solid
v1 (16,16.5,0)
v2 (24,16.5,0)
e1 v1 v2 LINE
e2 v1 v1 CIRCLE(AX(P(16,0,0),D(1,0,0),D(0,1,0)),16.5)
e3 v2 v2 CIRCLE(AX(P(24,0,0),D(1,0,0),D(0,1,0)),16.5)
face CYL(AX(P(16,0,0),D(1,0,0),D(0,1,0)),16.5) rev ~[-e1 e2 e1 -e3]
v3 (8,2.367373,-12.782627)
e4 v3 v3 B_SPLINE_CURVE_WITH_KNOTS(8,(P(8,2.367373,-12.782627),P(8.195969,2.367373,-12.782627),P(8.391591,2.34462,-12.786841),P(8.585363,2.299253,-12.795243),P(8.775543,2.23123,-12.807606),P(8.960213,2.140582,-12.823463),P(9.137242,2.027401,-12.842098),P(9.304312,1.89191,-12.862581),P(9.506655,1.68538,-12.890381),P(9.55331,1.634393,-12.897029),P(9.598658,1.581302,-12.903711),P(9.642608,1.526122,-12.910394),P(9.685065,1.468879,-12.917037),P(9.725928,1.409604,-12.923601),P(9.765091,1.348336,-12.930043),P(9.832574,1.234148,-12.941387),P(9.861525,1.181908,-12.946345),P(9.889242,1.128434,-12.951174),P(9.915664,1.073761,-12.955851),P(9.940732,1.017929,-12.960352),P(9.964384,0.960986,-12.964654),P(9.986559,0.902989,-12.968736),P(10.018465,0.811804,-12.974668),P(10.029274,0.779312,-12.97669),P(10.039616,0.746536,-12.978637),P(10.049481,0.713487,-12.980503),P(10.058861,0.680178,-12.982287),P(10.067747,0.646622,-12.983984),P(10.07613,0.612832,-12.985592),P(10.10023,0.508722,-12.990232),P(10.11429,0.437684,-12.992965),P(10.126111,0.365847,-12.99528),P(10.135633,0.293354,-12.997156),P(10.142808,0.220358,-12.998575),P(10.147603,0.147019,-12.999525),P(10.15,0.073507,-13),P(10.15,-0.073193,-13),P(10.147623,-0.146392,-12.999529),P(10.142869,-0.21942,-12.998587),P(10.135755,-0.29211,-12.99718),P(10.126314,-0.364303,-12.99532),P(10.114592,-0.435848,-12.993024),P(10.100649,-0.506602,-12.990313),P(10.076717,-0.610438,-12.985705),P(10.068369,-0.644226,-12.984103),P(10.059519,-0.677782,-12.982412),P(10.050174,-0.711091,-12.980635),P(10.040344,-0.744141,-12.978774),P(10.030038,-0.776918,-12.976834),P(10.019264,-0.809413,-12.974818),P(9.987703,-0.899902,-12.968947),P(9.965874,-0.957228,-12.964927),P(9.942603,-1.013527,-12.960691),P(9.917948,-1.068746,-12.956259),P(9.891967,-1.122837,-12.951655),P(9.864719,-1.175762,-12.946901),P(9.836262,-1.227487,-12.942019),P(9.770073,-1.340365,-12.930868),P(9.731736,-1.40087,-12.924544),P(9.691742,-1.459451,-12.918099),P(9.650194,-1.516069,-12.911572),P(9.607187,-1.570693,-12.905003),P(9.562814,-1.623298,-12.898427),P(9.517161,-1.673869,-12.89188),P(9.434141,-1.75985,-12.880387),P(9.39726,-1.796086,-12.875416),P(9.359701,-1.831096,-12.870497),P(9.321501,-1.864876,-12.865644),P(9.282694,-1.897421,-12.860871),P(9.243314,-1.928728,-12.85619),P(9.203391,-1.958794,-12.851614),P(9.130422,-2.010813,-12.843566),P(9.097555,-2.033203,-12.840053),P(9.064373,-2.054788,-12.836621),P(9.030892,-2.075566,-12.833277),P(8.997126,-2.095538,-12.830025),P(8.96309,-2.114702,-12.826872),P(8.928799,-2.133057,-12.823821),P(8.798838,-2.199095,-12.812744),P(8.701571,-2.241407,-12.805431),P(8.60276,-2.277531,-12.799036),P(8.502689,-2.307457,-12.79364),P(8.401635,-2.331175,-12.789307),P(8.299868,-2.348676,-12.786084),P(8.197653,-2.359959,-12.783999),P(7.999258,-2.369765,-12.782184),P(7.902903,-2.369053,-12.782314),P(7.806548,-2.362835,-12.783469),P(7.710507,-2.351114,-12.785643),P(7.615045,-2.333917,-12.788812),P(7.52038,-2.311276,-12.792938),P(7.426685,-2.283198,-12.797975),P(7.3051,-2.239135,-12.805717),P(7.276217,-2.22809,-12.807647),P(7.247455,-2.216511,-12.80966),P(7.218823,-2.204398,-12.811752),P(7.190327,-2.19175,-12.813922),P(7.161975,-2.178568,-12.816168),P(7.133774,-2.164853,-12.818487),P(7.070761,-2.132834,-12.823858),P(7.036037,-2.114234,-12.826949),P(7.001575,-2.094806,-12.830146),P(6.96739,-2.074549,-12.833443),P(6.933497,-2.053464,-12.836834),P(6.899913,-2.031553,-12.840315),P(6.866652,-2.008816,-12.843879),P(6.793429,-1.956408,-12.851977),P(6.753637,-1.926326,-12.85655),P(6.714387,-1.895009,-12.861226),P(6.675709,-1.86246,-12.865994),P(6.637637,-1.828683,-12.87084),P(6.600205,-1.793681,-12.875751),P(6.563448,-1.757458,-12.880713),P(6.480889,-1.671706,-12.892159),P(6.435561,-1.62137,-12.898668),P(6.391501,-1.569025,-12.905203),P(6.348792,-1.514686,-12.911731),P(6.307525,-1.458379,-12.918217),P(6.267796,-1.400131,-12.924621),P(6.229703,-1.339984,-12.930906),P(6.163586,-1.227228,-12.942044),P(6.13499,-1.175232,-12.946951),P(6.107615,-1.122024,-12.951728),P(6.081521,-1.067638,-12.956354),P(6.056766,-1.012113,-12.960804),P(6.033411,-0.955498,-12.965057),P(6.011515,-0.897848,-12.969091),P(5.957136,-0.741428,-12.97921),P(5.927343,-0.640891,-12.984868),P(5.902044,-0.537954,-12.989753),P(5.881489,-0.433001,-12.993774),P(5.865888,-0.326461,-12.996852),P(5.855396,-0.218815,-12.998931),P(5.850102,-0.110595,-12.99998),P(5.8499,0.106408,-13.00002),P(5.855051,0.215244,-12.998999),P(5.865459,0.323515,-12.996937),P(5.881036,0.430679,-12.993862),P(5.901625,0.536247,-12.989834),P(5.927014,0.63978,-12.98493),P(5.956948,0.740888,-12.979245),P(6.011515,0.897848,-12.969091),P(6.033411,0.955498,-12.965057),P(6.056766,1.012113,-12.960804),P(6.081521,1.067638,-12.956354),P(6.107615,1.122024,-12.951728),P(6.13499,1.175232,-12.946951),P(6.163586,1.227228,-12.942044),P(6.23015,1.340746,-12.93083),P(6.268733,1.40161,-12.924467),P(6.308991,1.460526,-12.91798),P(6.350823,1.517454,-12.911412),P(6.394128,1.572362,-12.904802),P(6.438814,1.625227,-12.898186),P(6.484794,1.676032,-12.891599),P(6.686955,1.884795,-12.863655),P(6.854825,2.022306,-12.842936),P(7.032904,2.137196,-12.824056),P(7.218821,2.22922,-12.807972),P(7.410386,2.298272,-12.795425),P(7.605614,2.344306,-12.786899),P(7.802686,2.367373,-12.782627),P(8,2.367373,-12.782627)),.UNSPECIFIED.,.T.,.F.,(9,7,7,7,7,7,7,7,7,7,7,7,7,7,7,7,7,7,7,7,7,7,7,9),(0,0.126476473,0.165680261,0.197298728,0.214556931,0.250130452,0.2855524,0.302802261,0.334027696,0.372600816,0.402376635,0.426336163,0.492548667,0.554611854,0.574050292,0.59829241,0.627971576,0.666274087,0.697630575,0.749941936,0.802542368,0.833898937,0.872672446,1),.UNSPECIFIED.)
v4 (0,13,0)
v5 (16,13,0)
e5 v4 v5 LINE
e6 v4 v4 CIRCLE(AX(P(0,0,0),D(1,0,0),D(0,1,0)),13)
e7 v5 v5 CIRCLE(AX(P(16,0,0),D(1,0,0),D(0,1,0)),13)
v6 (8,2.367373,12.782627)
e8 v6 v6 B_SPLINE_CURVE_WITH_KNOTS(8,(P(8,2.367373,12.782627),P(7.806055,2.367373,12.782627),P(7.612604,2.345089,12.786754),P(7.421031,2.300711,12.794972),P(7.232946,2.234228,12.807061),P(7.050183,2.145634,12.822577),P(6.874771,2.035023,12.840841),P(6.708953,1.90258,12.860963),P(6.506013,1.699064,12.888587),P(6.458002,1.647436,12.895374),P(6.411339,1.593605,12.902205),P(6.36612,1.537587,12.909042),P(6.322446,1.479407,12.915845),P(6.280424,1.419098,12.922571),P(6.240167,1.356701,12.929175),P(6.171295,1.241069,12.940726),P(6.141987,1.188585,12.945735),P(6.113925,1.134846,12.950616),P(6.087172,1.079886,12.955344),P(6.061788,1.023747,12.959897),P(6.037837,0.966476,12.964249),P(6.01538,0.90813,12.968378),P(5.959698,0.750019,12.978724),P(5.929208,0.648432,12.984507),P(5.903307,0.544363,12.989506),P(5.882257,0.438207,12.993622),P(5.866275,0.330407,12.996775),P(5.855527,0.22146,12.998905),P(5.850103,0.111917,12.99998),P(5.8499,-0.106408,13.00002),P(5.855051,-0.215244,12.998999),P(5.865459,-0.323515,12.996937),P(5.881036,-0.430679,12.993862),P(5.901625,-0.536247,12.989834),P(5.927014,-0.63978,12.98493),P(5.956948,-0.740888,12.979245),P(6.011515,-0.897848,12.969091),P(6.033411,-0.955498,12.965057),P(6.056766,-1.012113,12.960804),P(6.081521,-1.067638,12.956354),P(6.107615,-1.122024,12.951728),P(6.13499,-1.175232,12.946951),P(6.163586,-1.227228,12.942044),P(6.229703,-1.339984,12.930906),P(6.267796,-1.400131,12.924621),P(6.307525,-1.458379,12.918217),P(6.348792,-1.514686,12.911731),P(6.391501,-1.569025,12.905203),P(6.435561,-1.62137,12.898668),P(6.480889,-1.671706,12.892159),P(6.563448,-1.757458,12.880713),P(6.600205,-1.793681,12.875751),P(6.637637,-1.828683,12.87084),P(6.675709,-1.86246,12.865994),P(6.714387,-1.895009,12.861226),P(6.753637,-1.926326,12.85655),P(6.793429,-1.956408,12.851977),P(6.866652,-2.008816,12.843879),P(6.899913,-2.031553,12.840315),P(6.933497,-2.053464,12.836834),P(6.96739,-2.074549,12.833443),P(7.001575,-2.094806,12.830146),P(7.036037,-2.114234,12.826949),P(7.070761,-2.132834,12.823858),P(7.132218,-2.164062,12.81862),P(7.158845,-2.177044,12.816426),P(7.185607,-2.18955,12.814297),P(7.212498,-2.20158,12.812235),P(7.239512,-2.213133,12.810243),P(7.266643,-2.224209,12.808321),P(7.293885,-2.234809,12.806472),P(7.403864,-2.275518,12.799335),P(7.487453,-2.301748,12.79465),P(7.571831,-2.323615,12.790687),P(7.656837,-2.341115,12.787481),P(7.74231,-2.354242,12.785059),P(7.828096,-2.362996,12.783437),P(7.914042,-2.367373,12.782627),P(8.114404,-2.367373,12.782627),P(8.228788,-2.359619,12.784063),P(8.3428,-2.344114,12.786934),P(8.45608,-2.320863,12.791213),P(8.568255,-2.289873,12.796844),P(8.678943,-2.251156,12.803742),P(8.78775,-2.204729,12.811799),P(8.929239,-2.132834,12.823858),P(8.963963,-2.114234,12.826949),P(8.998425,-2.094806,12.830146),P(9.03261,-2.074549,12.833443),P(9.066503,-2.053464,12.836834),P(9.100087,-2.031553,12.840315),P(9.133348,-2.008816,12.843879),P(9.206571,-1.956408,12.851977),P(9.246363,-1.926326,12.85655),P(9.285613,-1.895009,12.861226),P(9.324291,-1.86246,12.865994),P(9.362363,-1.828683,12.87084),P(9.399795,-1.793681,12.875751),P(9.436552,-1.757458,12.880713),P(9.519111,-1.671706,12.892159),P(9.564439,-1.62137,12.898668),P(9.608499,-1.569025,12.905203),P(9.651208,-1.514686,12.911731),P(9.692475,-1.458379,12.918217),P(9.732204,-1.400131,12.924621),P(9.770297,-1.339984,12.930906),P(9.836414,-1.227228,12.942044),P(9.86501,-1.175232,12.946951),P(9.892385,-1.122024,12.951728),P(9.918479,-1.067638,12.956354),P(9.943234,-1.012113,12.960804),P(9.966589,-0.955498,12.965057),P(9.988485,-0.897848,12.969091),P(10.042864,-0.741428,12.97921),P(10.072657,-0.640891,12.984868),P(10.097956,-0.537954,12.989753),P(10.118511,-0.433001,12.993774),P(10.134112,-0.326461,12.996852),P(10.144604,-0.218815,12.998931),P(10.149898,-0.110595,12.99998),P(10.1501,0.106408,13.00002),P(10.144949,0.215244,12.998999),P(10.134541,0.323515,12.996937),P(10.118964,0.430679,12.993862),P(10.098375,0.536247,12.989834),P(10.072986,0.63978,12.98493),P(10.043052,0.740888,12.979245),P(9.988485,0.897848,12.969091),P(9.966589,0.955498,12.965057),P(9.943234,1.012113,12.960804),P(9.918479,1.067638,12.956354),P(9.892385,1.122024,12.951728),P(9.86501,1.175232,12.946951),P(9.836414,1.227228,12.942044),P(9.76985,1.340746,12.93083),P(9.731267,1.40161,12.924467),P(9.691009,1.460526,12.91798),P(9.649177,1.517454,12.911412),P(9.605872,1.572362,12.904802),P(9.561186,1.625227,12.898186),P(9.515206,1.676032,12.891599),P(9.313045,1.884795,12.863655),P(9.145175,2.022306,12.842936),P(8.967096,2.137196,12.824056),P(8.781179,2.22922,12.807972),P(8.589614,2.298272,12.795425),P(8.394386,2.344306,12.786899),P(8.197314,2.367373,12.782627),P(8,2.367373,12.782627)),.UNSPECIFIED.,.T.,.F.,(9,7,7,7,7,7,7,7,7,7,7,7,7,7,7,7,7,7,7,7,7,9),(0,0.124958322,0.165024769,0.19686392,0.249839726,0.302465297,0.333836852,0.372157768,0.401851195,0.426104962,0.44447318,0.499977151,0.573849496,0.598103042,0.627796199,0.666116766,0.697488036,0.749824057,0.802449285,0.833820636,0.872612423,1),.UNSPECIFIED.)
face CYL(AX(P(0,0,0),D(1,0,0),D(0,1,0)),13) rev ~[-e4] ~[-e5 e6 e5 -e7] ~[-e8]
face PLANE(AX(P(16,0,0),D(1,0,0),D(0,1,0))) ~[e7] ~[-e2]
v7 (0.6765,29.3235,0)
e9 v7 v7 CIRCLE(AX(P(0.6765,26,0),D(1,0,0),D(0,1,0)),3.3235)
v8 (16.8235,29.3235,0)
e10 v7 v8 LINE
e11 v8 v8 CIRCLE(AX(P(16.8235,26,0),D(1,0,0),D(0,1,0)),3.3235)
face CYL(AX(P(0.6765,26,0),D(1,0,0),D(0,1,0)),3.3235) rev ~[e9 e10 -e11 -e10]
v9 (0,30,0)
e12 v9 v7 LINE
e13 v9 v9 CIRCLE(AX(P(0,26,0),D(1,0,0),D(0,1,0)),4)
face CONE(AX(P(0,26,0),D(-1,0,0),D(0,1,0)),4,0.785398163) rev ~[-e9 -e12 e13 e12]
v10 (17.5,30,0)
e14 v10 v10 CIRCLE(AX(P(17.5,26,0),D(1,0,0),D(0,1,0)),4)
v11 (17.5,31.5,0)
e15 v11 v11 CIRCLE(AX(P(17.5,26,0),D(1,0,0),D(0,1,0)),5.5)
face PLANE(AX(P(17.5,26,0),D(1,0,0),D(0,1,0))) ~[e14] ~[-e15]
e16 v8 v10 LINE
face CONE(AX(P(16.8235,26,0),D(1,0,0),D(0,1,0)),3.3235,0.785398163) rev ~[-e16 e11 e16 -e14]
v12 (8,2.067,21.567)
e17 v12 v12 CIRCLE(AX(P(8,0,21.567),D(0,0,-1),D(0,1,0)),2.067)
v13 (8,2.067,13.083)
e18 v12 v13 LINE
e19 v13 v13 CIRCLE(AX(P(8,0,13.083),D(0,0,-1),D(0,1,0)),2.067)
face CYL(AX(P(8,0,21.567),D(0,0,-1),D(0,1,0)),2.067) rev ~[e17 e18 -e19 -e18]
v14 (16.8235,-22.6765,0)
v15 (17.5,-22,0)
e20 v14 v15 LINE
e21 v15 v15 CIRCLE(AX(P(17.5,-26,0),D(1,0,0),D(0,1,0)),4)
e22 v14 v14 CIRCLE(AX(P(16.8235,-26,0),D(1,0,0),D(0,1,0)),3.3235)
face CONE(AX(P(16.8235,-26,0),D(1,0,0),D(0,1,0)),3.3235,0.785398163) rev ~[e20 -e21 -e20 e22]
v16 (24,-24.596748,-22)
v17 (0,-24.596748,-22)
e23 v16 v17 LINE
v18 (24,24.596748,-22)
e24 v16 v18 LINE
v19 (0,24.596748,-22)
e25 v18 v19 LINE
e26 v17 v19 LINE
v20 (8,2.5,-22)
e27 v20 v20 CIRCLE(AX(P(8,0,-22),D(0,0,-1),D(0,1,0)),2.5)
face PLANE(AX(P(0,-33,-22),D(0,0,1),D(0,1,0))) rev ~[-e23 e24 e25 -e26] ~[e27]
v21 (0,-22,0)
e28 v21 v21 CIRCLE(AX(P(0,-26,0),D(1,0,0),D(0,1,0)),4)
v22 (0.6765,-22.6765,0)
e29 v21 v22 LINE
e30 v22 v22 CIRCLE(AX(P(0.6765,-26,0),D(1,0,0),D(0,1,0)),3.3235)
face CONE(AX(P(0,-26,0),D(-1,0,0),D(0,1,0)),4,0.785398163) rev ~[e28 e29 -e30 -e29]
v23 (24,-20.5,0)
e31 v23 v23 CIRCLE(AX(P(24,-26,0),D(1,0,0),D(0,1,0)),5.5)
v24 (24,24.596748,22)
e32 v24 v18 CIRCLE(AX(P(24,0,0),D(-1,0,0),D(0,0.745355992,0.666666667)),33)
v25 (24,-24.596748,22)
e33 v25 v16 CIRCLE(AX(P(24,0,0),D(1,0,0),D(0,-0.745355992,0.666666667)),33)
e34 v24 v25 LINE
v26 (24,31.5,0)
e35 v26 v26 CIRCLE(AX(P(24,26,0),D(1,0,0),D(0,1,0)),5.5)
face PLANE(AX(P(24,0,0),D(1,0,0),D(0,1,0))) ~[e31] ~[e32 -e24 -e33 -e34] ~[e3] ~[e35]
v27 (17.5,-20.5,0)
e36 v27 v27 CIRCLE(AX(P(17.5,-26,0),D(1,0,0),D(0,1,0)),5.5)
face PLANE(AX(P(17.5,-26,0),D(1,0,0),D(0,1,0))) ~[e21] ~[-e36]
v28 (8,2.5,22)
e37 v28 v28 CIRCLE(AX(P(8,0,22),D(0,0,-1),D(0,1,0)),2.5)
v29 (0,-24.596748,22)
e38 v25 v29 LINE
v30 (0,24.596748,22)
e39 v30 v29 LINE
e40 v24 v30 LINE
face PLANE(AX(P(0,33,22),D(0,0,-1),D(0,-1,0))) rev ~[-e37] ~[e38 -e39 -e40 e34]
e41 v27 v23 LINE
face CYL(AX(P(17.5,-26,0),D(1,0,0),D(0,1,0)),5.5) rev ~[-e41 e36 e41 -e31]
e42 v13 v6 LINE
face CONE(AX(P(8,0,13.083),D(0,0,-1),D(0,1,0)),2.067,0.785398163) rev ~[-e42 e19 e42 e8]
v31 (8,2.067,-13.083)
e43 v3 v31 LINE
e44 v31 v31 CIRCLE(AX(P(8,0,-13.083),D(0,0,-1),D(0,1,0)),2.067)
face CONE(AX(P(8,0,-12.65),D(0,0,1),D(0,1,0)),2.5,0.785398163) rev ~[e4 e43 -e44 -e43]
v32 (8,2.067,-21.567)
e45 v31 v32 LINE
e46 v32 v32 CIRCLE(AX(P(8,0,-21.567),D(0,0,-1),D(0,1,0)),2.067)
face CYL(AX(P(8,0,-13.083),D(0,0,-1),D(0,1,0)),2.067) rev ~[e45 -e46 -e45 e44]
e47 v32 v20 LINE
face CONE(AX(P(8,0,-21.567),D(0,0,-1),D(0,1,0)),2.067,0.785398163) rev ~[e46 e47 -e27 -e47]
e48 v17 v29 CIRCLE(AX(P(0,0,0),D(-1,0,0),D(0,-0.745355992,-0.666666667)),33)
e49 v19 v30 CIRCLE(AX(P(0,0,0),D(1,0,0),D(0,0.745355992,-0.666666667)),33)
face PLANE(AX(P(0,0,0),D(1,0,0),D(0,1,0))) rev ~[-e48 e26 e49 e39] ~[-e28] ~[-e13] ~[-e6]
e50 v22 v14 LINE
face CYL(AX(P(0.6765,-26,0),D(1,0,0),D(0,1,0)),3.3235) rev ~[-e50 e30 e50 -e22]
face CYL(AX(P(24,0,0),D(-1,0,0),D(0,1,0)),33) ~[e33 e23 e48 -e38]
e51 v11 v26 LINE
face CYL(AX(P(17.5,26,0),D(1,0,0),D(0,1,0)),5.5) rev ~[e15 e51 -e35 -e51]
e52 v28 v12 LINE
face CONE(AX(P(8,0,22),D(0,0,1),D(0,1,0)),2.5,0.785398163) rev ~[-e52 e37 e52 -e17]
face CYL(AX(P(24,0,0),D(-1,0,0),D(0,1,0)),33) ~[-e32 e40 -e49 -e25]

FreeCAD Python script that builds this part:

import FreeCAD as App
import Part
import Sketcher
from FreeCAD import Vector
Q = App.Units.Quantity


def add_polygon(sketch, points):
    """Adds a closed chain of lines whose ends are joined by coincident constraints."""
    first, n = sketch.GeometryCount, len(points)
    for a, b in zip(points, points[1:] + points[:1]):
        sketch.addGeometry(Part.LineSegment(App.Vector(*a, 0), App.Vector(*b, 0)), False)
    for i in range(n):
        sketch.addConstraint(Sketcher.Constraint("Coincident", first + i, 2, first + (i + 1) % n, 1))

doc = App.newDocument("Part")
params = doc.addObject("Spreadsheet::Sheet", "Params")
for row, (alias, value) in enumerate([
    ("sketch1_width", "24 mm"),
    ("sketch1_width2", "16 mm"),
    ("sketch1_height", "20 mm"),
    ("sketch1_height2", "3.5 mm"),
    ("revolution_angle", "360 deg"),
    ("sketch2_width", "264 mm"),
    ("sketch2_width2", "66 mm"),
    ("sketch2_height", "176 mm"),
    ("sketch2_height2", "44 mm"),
    ("pocket1_length", "26 mm"),
    ("sketch3_width", "24 mm"),
    ("sketch3_height", "4 mm"),
    ("sketch3_width2", "6.5 mm"),
    ("sketch3_height2", "5.5 mm"),
    ("groove_angle", "360 deg"),
    ("linearpattern_pitch", "52 mm"),
    ("sketch4_width", "2.5 mm"),
    ("sketch4_height", "9.35 mm"),
    ("groove2_angle", "360 deg"),
    ("sketch5_width", "2.5 mm"),
    ("sketch5_height", "9.35 mm"),
    ("groove3_angle", "360 deg"),
], start=1):
    params.set(f"A{row}", alias)
    params.set(f"B{row}", "=" + value)
    params.setAlias(f"B{row}", alias)

body = doc.addObject("PartDesign::Body", "Body")

# Sketch on XY plane
sketch1 = body.newObject("Sketcher::SketchObject", "Sketch")
sketch1.AttachmentSupport = (doc.getObject("XY_Plane"), [""])
sketch1.MapMode = "FlatFace"
add_polygon(sketch1, [(24, 33), (0, 33), (0, 13), (16, 13), (16, 16.5), (24, 16.5)])  # lines 0-5
sketch1.addConstraint([
    Sketcher.Constraint("Horizontal", 0),
    Sketcher.Constraint("Vertical", 1),
    Sketcher.Constraint("Horizontal", 2),
    Sketcher.Constraint("Vertical", 3),
    Sketcher.Constraint("Horizontal", 4),
    Sketcher.Constraint("Vertical", 5),
    Sketcher.Constraint("PointOnObject", 0, 2, -2),
    Sketcher.Constraint("DistanceX", 0, 2, 0, 1, Q("24 mm")),
    Sketcher.Constraint("DistanceX", 2, 1, 2, 2, Q("16 mm")),
    Sketcher.Constraint("DistanceY", 1, 2, 1, 1, Q("20 mm")),
    Sketcher.Constraint("DistanceY", 3, 1, 3, 2, Q("3.5 mm")),
    Sketcher.Constraint("DistanceY", -1, 1, 0, 2, Q("33 mm")),
])
sketch1.setExpression("Constraints[13]", "Params.sketch1_width")
sketch1.setExpression("Constraints[14]", "Params.sketch1_width2")
sketch1.setExpression("Constraints[15]", "Params.sketch1_height")
sketch1.setExpression("Constraints[16]", "Params.sketch1_height2")
revolution = body.newObject("PartDesign::Revolution", "Revolution")
revolution.Profile = sketch1
revolution.ReferenceAxis = (sketch1, ["H_Axis"])
revolution.setExpression("Angle", "Params.revolution_angle")

# Sketch on YZ plane
sketch2 = body.newObject("Sketcher::SketchObject", "Sketch001")
sketch2.AttachmentSupport = (doc.getObject("YZ_Plane"), [""])
sketch2.MapMode = "FlatFace"
add_polygon(sketch2, [(132, 88), (-132, 88), (-132, -88), (132, -88)])  # lines 0-3
add_polygon(sketch2, [(-33, -22), (-33, 22), (33, 22), (33, -22)])  # lines 4-7
sketch2.addConstraint([
    Sketcher.Constraint("Horizontal", 0),
    Sketcher.Constraint("Vertical", 1),
    Sketcher.Constraint("Horizontal", 2),
    Sketcher.Constraint("Vertical", 3),
    Sketcher.Constraint("Vertical", 4),
    Sketcher.Constraint("Horizontal", 5),
    Sketcher.Constraint("Vertical", 6),
    Sketcher.Constraint("Horizontal", 7),
    Sketcher.Constraint("Symmetric", 0, 2, 2, 2, -1, 1),
    Sketcher.Constraint("Symmetric", 4, 2, 6, 2, -1, 1),
    Sketcher.Constraint("DistanceX", 0, 2, 0, 1, Q("264 mm")),
    Sketcher.Constraint("DistanceX", 5, 1, 5, 2, Q("66 mm")),
    Sketcher.Constraint("DistanceY", 1, 2, 1, 1, Q("176 mm")),
    Sketcher.Constraint("DistanceY", 4, 1, 4, 2, Q("44 mm")),
])
sketch2.setExpression("Constraints[18]", "Params.sketch2_width")
sketch2.setExpression("Constraints[19]", "Params.sketch2_width2")
sketch2.setExpression("Constraints[20]", "Params.sketch2_height")
sketch2.setExpression("Constraints[21]", "Params.sketch2_height2")
pocket1 = body.newObject("PartDesign::Pocket", "Pocket")
pocket1.Profile = sketch2
pocket1.setExpression("Length", "Params.pocket1_length")
pocket1.Reversed = True

# Sketch on XY plane
sketch3 = body.newObject("Sketcher::SketchObject", "Sketch002")
sketch3.AttachmentSupport = (doc.getObject("XY_Plane"), [""])
sketch3.MapMode = "FlatFace"
add_polygon(sketch3, [(0, 26), (24, 26), (24, 31.5), (17.5, 31.5), (17.5, 30), (16.8, 29.3), (0.7, 29.3), (0, 30)])  # lines 0-7
sketch3.addGeometry(Part.LineSegment(Vector(0, 26, 0), Vector(24, 26, 0)), True)  # axis
sketch3.addConstraint([
    Sketcher.Constraint("Horizontal", 0),
    Sketcher.Constraint("Vertical", 1),
    Sketcher.Constraint("Horizontal", 2),
    Sketcher.Constraint("Vertical", 3),
    Sketcher.Constraint("Horizontal", 5),
    Sketcher.Constraint("Vertical", 7),
    Sketcher.Constraint("Horizontal", 8),
    Sketcher.Constraint("Coincident", 8, 1, 7, 2),
    Sketcher.Constraint("PointOnObject", 6, 2, -2),
    Sketcher.Constraint("Perpendicular", 4, 6),
    Sketcher.Constraint("Horizontal", 3, 2, 6, 2),
    Sketcher.Constraint("Vertical", 1, 2, 8, 2),
    Sketcher.Constraint("Equal", 4, 6),
    Sketcher.Constraint("DistanceX", 0, 1, 0, 2, Q("24 mm")),
    Sketcher.Constraint("DistanceY", 7, 2, 7, 1, Q("4 mm")),
    Sketcher.Constraint("DistanceX", 2, 2, 2, 1, Q("6.5 mm")),
    Sketcher.Constraint("DistanceY", 1, 1, 1, 2, Q("5.5 mm")),
    Sketcher.Constraint("DistanceY", -1, 1, 0, 2, Q("26 mm")),
    Sketcher.Constraint("DistanceX", 5, 2, 5, 1, Q("16.147 mm")),
])
sketch3.setExpression("Constraints[21]", "Params.sketch3_width")
sketch3.setExpression("Constraints[22]", "Params.sketch3_height")
sketch3.setExpression("Constraints[23]", "Params.sketch3_width2")
sketch3.setExpression("Constraints[24]", "Params.sketch3_height2")
groove = body.newObject("PartDesign::Groove", "Groove")
groove.Profile = sketch3
groove.ReferenceAxis = (sketch3, ["Axis0"])
groove.setExpression("Angle", "Params.groove_angle")
doc.recompute()

linearpattern = body.newObject("PartDesign::LinearPattern", "LinearPattern")
linearpattern.Originals = [groove]
linearpattern.Direction = (doc.getObject("Y_Axis"), [""])
linearpattern.Mode = "offset"
linearpattern.setExpression("Offset", "Params.linearpattern_pitch")
linearpattern.Occurrences = 2
linearpattern.Reversed = True
body.Tip = linearpattern

# Sketch on YZ plane
sketch4 = body.newObject("Sketcher::SketchObject", "Sketch003")
sketch4.AttachmentSupport = (doc.getObject("YZ_Plane"), [""])
sketch4.MapMode = "FlatFace"
sketch4.AttachmentOffset = App.Placement(Vector(0, 0, 8), App.Rotation())
add_polygon(sketch4, [(0, 22), (0, 12.7), (2.5, 12.7), (2.1, 13.1), (2.1, 21.6), (2.5, 22)])  # lines 0-5
sketch4.addConstraint([
    Sketcher.Constraint("Vertical", 0),
    Sketcher.Constraint("Horizontal", 1),
    Sketcher.Constraint("Vertical", 3),
    Sketcher.Constraint("Horizontal", 5),
    Sketcher.Constraint("PointOnObject", 0, 2, -2),
    Sketcher.Constraint("Perpendicular", 2, 4),
    Sketcher.Constraint("Vertical", 1, 2, 4, 2),
    Sketcher.Constraint("Equal", 2, 4),
    Sketcher.Constraint("DistanceX", 1, 1, 1, 2, Q("2.5 mm")),
    Sketcher.Constraint("DistanceY", -1, 1, 4, 2, Q("22 mm")),
    Sketcher.Constraint("DistanceY", 0, 2, 0, 1, Q("9.35 mm")),
    Sketcher.Constraint("DistanceY", 3, 1, 3, 2, Q("8.484 mm")),
])
sketch4.setExpression("Constraints[14]", "Params.sketch4_width")
sketch4.setExpression("Constraints[16]", "Params.sketch4_height")
groove2 = body.newObject("PartDesign::Groove", "Groove001")
groove2.Profile = sketch4
groove2.ReferenceAxis = (sketch4, ["V_Axis"])
groove2.setExpression("Angle", "Params.groove2_angle")

# Sketch on YZ plane
sketch5 = body.newObject("Sketcher::SketchObject", "Sketch004")
sketch5.AttachmentSupport = (doc.getObject("YZ_Plane"), [""])
sketch5.MapMode = "FlatFace"
sketch5.AttachmentOffset = App.Placement(Vector(0, 0, 8), App.Rotation())
add_polygon(sketch5, [(0, -12.7), (0, -22), (2.5, -22), (2.1, -21.6), (2.1, -13.1), (2.5, -12.7)])  # lines 0-5
sketch5.addConstraint([
    Sketcher.Constraint("Vertical", 0),
    Sketcher.Constraint("Horizontal", 1),
    Sketcher.Constraint("Vertical", 3),
    Sketcher.Constraint("Horizontal", 5),
    Sketcher.Constraint("PointOnObject", 0, 2, -2),
    Sketcher.Constraint("Perpendicular", 2, 4),
    Sketcher.Constraint("Vertical", 1, 2, 4, 2),
    Sketcher.Constraint("Equal", 2, 4),
    Sketcher.Constraint("DistanceX", 1, 1, 1, 2, Q("2.5 mm")),
    Sketcher.Constraint("DistanceY", 0, 2, -1, 1, Q("22 mm")),
    Sketcher.Constraint("DistanceY", 0, 2, 0, 1, Q("9.35 mm")),
    Sketcher.Constraint("DistanceY", 3, 1, 3, 2, Q("8.484 mm")),
])
sketch5.setExpression("Constraints[14]", "Params.sketch5_width")
sketch5.setExpression("Constraints[16]", "Params.sketch5_height")
groove3 = body.newObject("PartDesign::Groove", "Groove002")
groove3.Profile = sketch5
groove3.ReferenceAxis = (sketch5, ["V_Axis"])
groove3.setExpression("Angle", "Params.groove3_angle")

doc.recompute()
